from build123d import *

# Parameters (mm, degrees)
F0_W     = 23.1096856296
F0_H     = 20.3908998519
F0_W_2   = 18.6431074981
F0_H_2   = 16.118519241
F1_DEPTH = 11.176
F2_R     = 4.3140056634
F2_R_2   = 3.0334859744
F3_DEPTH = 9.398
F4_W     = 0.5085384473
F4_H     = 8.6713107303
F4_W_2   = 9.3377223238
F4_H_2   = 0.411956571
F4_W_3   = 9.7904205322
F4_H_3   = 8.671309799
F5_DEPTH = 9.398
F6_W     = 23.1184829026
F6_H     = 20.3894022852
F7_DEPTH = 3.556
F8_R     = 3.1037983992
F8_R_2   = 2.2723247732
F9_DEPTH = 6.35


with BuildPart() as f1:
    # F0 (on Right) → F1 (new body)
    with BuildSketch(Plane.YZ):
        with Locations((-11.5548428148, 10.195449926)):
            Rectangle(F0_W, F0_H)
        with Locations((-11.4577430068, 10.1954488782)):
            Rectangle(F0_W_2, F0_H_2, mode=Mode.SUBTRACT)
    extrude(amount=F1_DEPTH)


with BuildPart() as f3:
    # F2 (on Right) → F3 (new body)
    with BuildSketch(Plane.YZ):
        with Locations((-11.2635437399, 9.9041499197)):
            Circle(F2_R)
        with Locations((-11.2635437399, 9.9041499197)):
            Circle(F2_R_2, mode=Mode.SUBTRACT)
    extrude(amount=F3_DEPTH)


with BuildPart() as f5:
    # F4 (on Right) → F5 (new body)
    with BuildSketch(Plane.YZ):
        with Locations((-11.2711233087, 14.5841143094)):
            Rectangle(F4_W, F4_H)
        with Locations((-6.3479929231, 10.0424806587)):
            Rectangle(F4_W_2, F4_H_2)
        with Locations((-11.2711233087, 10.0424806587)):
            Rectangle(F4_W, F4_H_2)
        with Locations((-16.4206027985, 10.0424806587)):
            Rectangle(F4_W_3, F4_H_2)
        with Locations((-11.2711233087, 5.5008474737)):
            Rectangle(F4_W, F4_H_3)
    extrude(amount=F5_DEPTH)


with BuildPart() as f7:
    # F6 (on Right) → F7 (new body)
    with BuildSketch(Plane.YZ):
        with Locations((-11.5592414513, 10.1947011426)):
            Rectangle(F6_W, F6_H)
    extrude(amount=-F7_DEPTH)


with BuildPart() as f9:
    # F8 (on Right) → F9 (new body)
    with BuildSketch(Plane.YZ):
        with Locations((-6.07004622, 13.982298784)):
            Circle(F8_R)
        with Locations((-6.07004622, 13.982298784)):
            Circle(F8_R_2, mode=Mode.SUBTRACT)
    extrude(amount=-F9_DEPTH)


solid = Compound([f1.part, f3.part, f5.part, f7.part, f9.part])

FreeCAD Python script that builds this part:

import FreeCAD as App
import Part
import Sketcher
Q = App.Units.Quantity


def add_polygon(sketch, points):
    """Adds a closed chain of lines whose ends are joined by coincident constraints."""
    first, n = sketch.GeometryCount, len(points)
    for a, b in zip(points, points[1:] + points[:1]):
        sketch.addGeometry(Part.LineSegment(App.Vector(*a, 0), App.Vector(*b, 0)), False)
    for i in range(n):
        sketch.addConstraint(Sketcher.Constraint("Coincident", first + i, 2, first + (i + 1) % n, 1))

doc = App.newDocument("Part")
params = doc.addObject("Spreadsheet::Sheet", "Params")
for row, (alias, value) in enumerate([
    ("pad1_length", "0.44 in"),
    ("pad2_length", "0.37 in"),
    ("pad3_length", "0.37 in"),
    ("pad4_length", "0.14 in"),
    ("pad5_length", "0.25 in"),
], start=1):
    params.set(f"A{row}", alias)
    params.set(f"B{row}", "=" + value)
    params.setAlias(f"B{row}", alias)

body = doc.addObject("PartDesign::Body", "Body")

# Sketch on YZ plane
sketch1 = doc.addObject("Sketcher::SketchObject", "Sketch")
body.addObject(sketch1)
sketch1.AttachmentSupport = (doc.YZ_Plane, [""])
sketch1.MapMode = "FlatFace"
add_polygon(sketch1, [(-23, 20), (-23, 0), (0, 0), (0, 20)])  # lines 0-3
add_polygon(sketch1, [(-2, 2), (-21, 2), (-21, 18), (-2, 18)])  # lines 4-7
sketch1.addConstraint([
    Sketcher.Constraint("Vertical", 0),
    Sketcher.Constraint("Horizontal", 1),
    Sketcher.Constraint("Vertical", 2),
    Sketcher.Constraint("Horizontal", 3),
    Sketcher.Constraint("Horizontal", 4),
    Sketcher.Constraint("Vertical", 5),
    Sketcher.Constraint("Horizontal", 6),
    Sketcher.Constraint("Vertical", 7),
    Sketcher.Constraint("Coincident", 1, 2, -1, 1),
    Sketcher.Constraint("DistanceY", 0, 2, 0, 1, Q("20.3909 mm")),
    Sketcher.Constraint("DistanceY", 5, 1, 5, 2, Q("16.118519 mm")),
    Sketcher.Constraint("DistanceX", 1, 1, 1, 2, Q("23.109686 mm")),
    Sketcher.Constraint("DistanceX", 4, 2, 4, 1, Q("18.643107 mm")),
    Sketcher.Constraint("DistanceY", -1, 1, 4, 2, Q("2.136189 mm")),
    Sketcher.Constraint("DistanceX", 6, 2, -1, 1, Q("2.136189 mm")),
])
pad1 = doc.addObject("PartDesign::Pad", "Pad")
body.addObject(pad1)
pad1.Profile = sketch1
pad1.setExpression("Length", "Params.pad1_length")
body2 = doc.addObject("PartDesign::Body", "Body001")

# Sketch on YZ plane
sketch2 = doc.addObject("Sketcher::SketchObject", "Sketch001")
body2.addObject(sketch2)
sketch2.AttachmentSupport = (doc.getObject("YZ_Plane001"), [""])
sketch2.MapMode = "FlatFace"
sketch2.addGeometry([
    Part.Circle(App.Vector(-11.3, 9.9, 0), App.Vector(0, 0, 1), 4.3),
    Part.Circle(App.Vector(-11.3, 9.9, 0), App.Vector(0, 0, 1), 3),
], False)
sketch2.addConstraint([
    Sketcher.Constraint("Coincident", 1, 3, 0, 3),
    Sketcher.Constraint("Diameter", 0, Q("8.628011 mm")),
    Sketcher.Constraint("Diameter", 1, Q("6.066972 mm")),
    Sketcher.Constraint("DistanceY", -1, 1, 0, 3, Q("9.90415 mm")),
    Sketcher.Constraint("DistanceX", 0, 3, -1, 1, Q("11.263544 mm")),
])
pad2 = doc.addObject("PartDesign::Pad", "Pad001")
body2.addObject(pad2)
pad2.Profile = sketch2
pad2.setExpression("Length", "Params.pad2_length")
body3 = doc.addObject("PartDesign::Body", "Body002")

# Sketch on YZ plane
sketch3 = doc.addObject("Sketcher::SketchObject", "Sketch002")
body3.addObject(sketch3)
sketch3.AttachmentSupport = (doc.getObject("YZ_Plane002"), [""])
sketch3.MapMode = "FlatFace"
add_polygon(sketch3, [(-11.53, 18.92), (-11.53, 10.25), (-21.32, 10.25), (-21.32, 9.84), (-11.53, 9.84), (-11.53, 1.17), (-11.02, 1.17), (-11.02, 9.84), (-1.68, 9.84), (-1.68, 10.25), (-11.02, 10.25), (-11.02, 18.92)])  # lines 0-11
sketch3.addConstraint([
    Sketcher.Constraint("Vertical", 0),
    Sketcher.Constraint("Horizontal", 1),
    Sketcher.Constraint("Vertical", 2),
    Sketcher.Constraint("Horizontal", 3),
    Sketcher.Constraint("Vertical", 4),
    Sketcher.Constraint("Horizontal", 5),
    Sketcher.Constraint("Vertical", 6),
    Sketcher.Constraint("Horizontal", 7),
    Sketcher.Constraint("Vertical", 8),
    Sketcher.Constraint("Horizontal", 9),
    Sketcher.Constraint("Vertical", 10),
    Sketcher.Constraint("Horizontal", 11),
    Sketcher.Constraint("Horizontal", 3, 2, 6, 2),
    Sketcher.Constraint("Horizontal", 1, 2, 8, 2),
    Sketcher.Constraint("Vertical", 0, 2, 3, 2),
    Sketcher.Constraint("Vertical", 6, 2, 9, 2),
    Sketcher.Constraint("Equal", 0, 4),
    Sketcher.Constraint("DistanceX", 1, 2, 1, 1, Q("9.790421 mm")),
    Sketcher.Constraint("DistanceX", 5, 1, 5, 2, Q("0.508538 mm")),
    Sketcher.Constraint("DistanceY", 0, 2, 0, 1, Q("8.671311 mm")),
    Sketcher.Constraint("DistanceX", 7, 1, 7, 2, Q("9.337722 mm")),
    Sketcher.Constraint("DistanceY", 2, 2, 2, 1, Q("0.411957 mm")),
    Sketcher.Constraint("DistanceY", -1, 1, 0, 2, Q("10.248459 mm")),
    Sketcher.Constraint("DistanceX", 7, 2, -1, 1, Q("1.679132 mm")),
])
pad3 = doc.addObject("PartDesign::Pad", "Pad002")
body3.addObject(pad3)
pad3.Profile = sketch3
pad3.setExpression("Length", "Params.pad3_length")
body4 = doc.addObject("PartDesign::Body", "Body003")

# Sketch on YZ plane
sketch4 = doc.addObject("Sketcher::SketchObject", "Sketch003")
body4.addObject(sketch4)
sketch4.AttachmentSupport = (doc.getObject("YZ_Plane003"), [""])
sketch4.MapMode = "FlatFace"
add_polygon(sketch4, [(-23, 20), (-23, 0), (0, 0), (0, 20)])  # lines 0-3
sketch4.addConstraint([
    Sketcher.Constraint("Vertical", 0),
    Sketcher.Constraint("Horizontal", 1),
    Sketcher.Constraint("Vertical", 2),
    Sketcher.Constraint("Horizontal", 3),
    Sketcher.Constraint("Coincident", 1, 2, -1, 1),
    Sketcher.Constraint("DistanceX", 1, 1, 1, 2, Q("23.118483 mm")),
    Sketcher.Constraint("DistanceY", 0, 2, 0, 1, Q("20.389402 mm")),
])
pad4 = doc.addObject("PartDesign::Pad", "Pad003")
body4.addObject(pad4)
pad4.Profile = sketch4
pad4.setExpression("Length", "Params.pad4_length")
pad4.Reversed = True
body5 = doc.addObject("PartDesign::Body", "Body004")

# Sketch on YZ plane
sketch5 = doc.addObject("Sketcher::SketchObject", "Sketch004")
body5.addObject(sketch5)
sketch5.AttachmentSupport = (doc.getObject("YZ_Plane004"), [""])
sketch5.MapMode = "FlatFace"
sketch5.addGeometry([
    Part.Circle(App.Vector(-6.1, 14, 0), App.Vector(0, 0, 1), 3.1),
    Part.Circle(App.Vector(-6.1, 14, 0), App.Vector(0, 0, 1), 2.3),
], False)
sketch5.addConstraint([
    Sketcher.Constraint("Coincident", 1, 3, 0, 3),
    Sketcher.Constraint("Diameter", 1, Q("4.54465 mm")),
    Sketcher.Constraint("Diameter", 0, Q("6.207597 mm")),
    Sketcher.Constraint("DistanceY", -1, 1, 0, 3, Q("13.982299 mm")),
    Sketcher.Constraint("DistanceX", 0, 3, -1, 1, Q("6.070046 mm")),
])
pad5 = doc.addObject("PartDesign::Pad", "Pad004")
body5.addObject(pad5)
pad5.Profile = sketch5
pad5.setExpression("Length", "Params.pad5_length")
pad5.Reversed = True

doc.recompute()
